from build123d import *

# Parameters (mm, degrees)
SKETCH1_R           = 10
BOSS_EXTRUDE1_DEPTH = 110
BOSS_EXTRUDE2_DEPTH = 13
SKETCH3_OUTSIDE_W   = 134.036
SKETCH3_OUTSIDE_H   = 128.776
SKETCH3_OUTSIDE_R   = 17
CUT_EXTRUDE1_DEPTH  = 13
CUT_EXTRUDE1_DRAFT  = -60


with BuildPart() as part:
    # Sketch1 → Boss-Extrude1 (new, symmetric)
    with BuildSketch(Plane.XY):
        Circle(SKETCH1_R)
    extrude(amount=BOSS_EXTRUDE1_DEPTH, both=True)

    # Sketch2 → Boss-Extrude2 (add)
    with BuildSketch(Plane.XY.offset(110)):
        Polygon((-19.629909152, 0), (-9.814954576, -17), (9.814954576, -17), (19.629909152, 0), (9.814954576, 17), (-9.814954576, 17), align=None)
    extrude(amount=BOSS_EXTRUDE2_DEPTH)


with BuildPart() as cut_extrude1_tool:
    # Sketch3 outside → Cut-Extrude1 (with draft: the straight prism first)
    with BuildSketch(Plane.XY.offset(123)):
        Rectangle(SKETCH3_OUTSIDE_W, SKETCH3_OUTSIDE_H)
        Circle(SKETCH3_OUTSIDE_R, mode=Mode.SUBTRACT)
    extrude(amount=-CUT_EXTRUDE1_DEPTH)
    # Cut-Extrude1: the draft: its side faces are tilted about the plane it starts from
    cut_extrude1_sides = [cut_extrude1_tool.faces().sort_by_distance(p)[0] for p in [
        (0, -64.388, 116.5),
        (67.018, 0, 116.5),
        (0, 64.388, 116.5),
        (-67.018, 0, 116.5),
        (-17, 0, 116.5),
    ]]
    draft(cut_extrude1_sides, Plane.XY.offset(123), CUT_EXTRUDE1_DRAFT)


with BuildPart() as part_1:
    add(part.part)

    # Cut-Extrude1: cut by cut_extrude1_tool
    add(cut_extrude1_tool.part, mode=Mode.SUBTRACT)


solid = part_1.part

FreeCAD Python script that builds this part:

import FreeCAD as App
import Part
import Sketcher

V = App.Vector
Q = App.Units.Quantity


def faces_at(feature, points):
    """Names of the faces that lie closest to the given points."""
    faces = feature.Shape.Faces
    near = lambda p: min(range(len(faces)), key=lambda i: faces[i].distToShape(Part.Vertex(*p))[0])
    return sorted({f"Face{near(p) + 1}" for p in points})

doc = App.newDocument("Part")
body = doc.addObject("PartDesign::Body", "Body")

sketch1 = body.newObject("Sketcher::SketchObject", "Sketch")
sketch1.AttachmentSupport = (doc.getObject("XY_Plane"), [""])
sketch1.MapMode = "FlatFace"
sketch1.addGeometry(Part.Circle(V(0, 0, 0), V(0, 0, 1), 10), False)
sketch1.addConstraint(Sketcher.Constraint("Coincident", 0, 3, -1, 1))
sketch1.addConstraint(Sketcher.Constraint("Diameter", 0, 20.0))
pad1 = body.newObject("PartDesign::Pad", "Pad")
pad1.Profile = sketch1
pad1.Length = 220
pad1.Midplane = True

sketch2 = body.newObject("Sketcher::SketchObject", "Sketch001")
sketch2.AttachmentSupport = (doc.getObject("XY_Plane"), [""])
sketch2.MapMode = "FlatFace"
sketch2.AttachmentOffset = App.Placement(V(0, 0, 110), App.Rotation())
sketch2.addGeometry(Part.LineSegment(V(-20, 0, 0), V(-10, -17, 0)), False)
sketch2.addGeometry(Part.LineSegment(V(-10, -17, 0), V(10, -17, 0)), False)
sketch2.addGeometry(Part.LineSegment(V(10, -17, 0), V(20, 0, 0)), False)
sketch2.addGeometry(Part.LineSegment(V(20, 0, 0), V(10, 17, 0)), False)
sketch2.addGeometry(Part.LineSegment(V(10, 17, 0), V(-10, 17, 0)), False)
sketch2.addGeometry(Part.LineSegment(V(-10, 17, 0), V(-20, 0, 0)), False)
sketch2.addConstraint(Sketcher.Constraint("Coincident", 0, 2, 1, 1))
sketch2.addConstraint(Sketcher.Constraint("Coincident", 1, 2, 2, 1))
sketch2.addConstraint(Sketcher.Constraint("Coincident", 2, 2, 3, 1))
sketch2.addConstraint(Sketcher.Constraint("Coincident", 3, 2, 4, 1))
sketch2.addConstraint(Sketcher.Constraint("Coincident", 4, 2, 5, 1))
sketch2.addConstraint(Sketcher.Constraint("Coincident", 5, 2, 0, 1))
sketch2.addConstraint(Sketcher.Constraint("Horizontal", 1))
sketch2.addConstraint(Sketcher.Constraint("Horizontal", 4))
sketch2.addConstraint(Sketcher.Constraint("Symmetric", 0, 2, 3, 2, -1, 1))
sketch2.addConstraint(Sketcher.Constraint("Symmetric", 2, 2, 5, 2, -1, 1))
sketch2.addConstraint(Sketcher.Constraint("PointOnObject", 2, 2, -1))
sketch2.addConstraint(Sketcher.Constraint("Parallel", 2, 5))
sketch2.addConstraint(Sketcher.Constraint("Vertical", 1, 2, 3, 2))
sketch2.addConstraint(Sketcher.Constraint("Angle", 0, Q("-60 deg")))
sketch2.addConstraint(Sketcher.Constraint("DistanceY", 0, 2, -1, 1, 17.0))
sketch2.addConstraint(Sketcher.Constraint("DistanceX", 1, 1, 1, 2, 19.629909))
pad2 = body.newObject("PartDesign::Pad", "Pad001")
pad2.Profile = sketch2
pad2.Length = 13
body2 = doc.addObject("PartDesign::Body", "Body001")

sketch3 = body2.newObject("Sketcher::SketchObject", "Sketch002")
sketch3.AttachmentSupport = (doc.getObject("XY_Plane001"), [""])
sketch3.MapMode = "FlatFace"
sketch3.AttachmentOffset = App.Placement(V(0, 0, 123), App.Rotation())
sketch3.addGeometry(Part.LineSegment(V(-67, 64, 0), V(-67, -64, 0)), False)
sketch3.addGeometry(Part.LineSegment(V(-67, -64, 0), V(67, -64, 0)), False)
sketch3.addGeometry(Part.LineSegment(V(67, -64, 0), V(67, 64, 0)), False)
sketch3.addGeometry(Part.LineSegment(V(67, 64, 0), V(-67, 64, 0)), False)
sketch3.addGeometry(Part.Circle(V(0, 0, 0), V(0, 0, 1), 17), False)
sketch3.addConstraint(Sketcher.Constraint("Coincident", 0, 2, 1, 1))
sketch3.addConstraint(Sketcher.Constraint("Coincident", 1, 2, 2, 1))
sketch3.addConstraint(Sketcher.Constraint("Coincident", 2, 2, 3, 1))
sketch3.addConstraint(Sketcher.Constraint("Coincident", 3, 2, 0, 1))
sketch3.addConstraint(Sketcher.Constraint("Vertical", 0))
sketch3.addConstraint(Sketcher.Constraint("Horizontal", 1))
sketch3.addConstraint(Sketcher.Constraint("Vertical", 2))
sketch3.addConstraint(Sketcher.Constraint("Horizontal", 3))
sketch3.addConstraint(Sketcher.Constraint("Coincident", 4, 3, -1, 1))
sketch3.addConstraint(Sketcher.Constraint("Symmetric", 0, 2, 2, 2, -1, 1))
sketch3.addConstraint(Sketcher.Constraint("Diameter", 4, 34.0))
sketch3.addConstraint(Sketcher.Constraint("DistanceX", 1, 1, 1, 2, 134.036))
sketch3.addConstraint(Sketcher.Constraint("DistanceY", 0, 2, 0, 1, 128.776))
pad3 = body2.newObject("PartDesign::Pad", "Pad002")
pad3.Profile = sketch3
pad3.Length = 13
pad3.Reversed = True
doc.recompute()

datumplane = body2.newObject("PartDesign::Plane", "DatumPlane")
datumplane.AttachmentSupport = (doc.getObject("XY_Plane001"), [""])
datumplane.MapMode = "FlatFace"
datumplane.AttachmentOffset = App.Placement(V(0, 0, 123), App.Rotation())
draft = body2.newObject("PartDesign::Draft", "Draft")
draft.Base = (pad3, faces_at(pad3, [
    (0, -64.388, 116.5),
    (67.018, 0, 116.5),
    (0, 64.388, 116.5),
    (-67.018, 0, 116.5),
    (-17, 0, 116.5),
]))
draft.NeutralPlane = (datumplane, [""])
draft.Angle = 60
draft.Reversed = True
doc.recompute()

boolean = body.newObject("PartDesign::Boolean", "Boolean")
boolean.Type = "Cut"
boolean.addObjects([body2])

doc.recompute()
